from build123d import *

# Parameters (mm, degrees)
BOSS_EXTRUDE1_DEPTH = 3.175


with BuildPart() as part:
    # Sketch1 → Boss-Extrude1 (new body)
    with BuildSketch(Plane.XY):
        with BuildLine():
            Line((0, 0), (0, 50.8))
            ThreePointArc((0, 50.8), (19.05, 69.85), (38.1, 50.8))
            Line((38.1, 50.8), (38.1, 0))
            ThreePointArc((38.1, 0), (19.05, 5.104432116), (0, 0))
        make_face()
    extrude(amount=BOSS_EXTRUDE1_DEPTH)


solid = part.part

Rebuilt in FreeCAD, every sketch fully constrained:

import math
import FreeCAD as App
import Part
import Sketcher

V = App.Vector
Q = App.Units.Quantity

doc = App.newDocument("Part")
params = doc.addObject("Spreadsheet::Sheet", "Params")
for row, (alias, value) in enumerate([
    ("sketch1_radius", "1.5 in"),
    ("sketch1_height", "2 in"),
    ("sketch1_radius2", "0.75 in"),
    ("pad1_length", "0.125 in"),
], start=1):
    params.set(f"A{row}", alias)
    params.set(f"B{row}", "=" + value)
    params.setAlias(f"B{row}", alias)

body = doc.addObject("PartDesign::Body", "Body")

# Sketch on XY plane
sketch1 = body.newObject("Sketcher::SketchObject", "Sketch")
sketch1.AttachmentSupport = (doc.getObject("XY_Plane"), [""])
sketch1.MapMode = "FlatFace"
sketch1.addGeometry(Part.LineSegment(V(0, 51, 0), V(0, 0, 0)), False)
sketch1.addGeometry(Part.ArcOfCircle(Part.Circle(V(19, -33, 0), V(0, 0, 1), 38), math.radians(60), math.radians(120)), False)
sketch1.addGeometry(Part.LineSegment(V(38, 0, 0), V(38, 51, 0)), False)
sketch1.addGeometry(Part.ArcOfCircle(Part.Circle(V(19, 51, 0), V(0, 0, 1), 19), math.radians(0), math.radians(180)), False)
sketch1.addConstraint(Sketcher.Constraint("Coincident", 0, 2, 1, 2))
sketch1.addConstraint(Sketcher.Constraint("Coincident", 1, 1, 2, 1))
sketch1.addConstraint(Sketcher.Constraint("Tangent", 2, 2, 3, 1))
sketch1.addConstraint(Sketcher.Constraint("Tangent", 3, 2, 0, 1))
sketch1.addConstraint(Sketcher.Constraint("Vertical", 0))
sketch1.addConstraint(Sketcher.Constraint("Vertical", 2))
sketch1.addConstraint(Sketcher.Constraint("Coincident", 0, 2, -1, 1))
sketch1.addConstraint(Sketcher.Constraint("PointOnObject", 1, 1, -1))
sketch1.addConstraint(Sketcher.Constraint("Radius", 1, Q("1.5 in")))
sketch1.addConstraint(Sketcher.Constraint("DistanceY", 0, 2, 0, 1, Q("2 in")))
sketch1.addConstraint(Sketcher.Constraint("Radius", 3, Q("0.75 in")))
sketch1.setExpression("Constraints[8]", "Params.sketch1_radius")
sketch1.setExpression("Constraints[9]", "Params.sketch1_height")
sketch1.setExpression("Constraints[10]", "Params.sketch1_radius2")
pad1 = body.newObject("PartDesign::Pad", "Pad")
pad1.Profile = sketch1
pad1.setExpression("Length", "Params.pad1_length")

doc.recompute()
